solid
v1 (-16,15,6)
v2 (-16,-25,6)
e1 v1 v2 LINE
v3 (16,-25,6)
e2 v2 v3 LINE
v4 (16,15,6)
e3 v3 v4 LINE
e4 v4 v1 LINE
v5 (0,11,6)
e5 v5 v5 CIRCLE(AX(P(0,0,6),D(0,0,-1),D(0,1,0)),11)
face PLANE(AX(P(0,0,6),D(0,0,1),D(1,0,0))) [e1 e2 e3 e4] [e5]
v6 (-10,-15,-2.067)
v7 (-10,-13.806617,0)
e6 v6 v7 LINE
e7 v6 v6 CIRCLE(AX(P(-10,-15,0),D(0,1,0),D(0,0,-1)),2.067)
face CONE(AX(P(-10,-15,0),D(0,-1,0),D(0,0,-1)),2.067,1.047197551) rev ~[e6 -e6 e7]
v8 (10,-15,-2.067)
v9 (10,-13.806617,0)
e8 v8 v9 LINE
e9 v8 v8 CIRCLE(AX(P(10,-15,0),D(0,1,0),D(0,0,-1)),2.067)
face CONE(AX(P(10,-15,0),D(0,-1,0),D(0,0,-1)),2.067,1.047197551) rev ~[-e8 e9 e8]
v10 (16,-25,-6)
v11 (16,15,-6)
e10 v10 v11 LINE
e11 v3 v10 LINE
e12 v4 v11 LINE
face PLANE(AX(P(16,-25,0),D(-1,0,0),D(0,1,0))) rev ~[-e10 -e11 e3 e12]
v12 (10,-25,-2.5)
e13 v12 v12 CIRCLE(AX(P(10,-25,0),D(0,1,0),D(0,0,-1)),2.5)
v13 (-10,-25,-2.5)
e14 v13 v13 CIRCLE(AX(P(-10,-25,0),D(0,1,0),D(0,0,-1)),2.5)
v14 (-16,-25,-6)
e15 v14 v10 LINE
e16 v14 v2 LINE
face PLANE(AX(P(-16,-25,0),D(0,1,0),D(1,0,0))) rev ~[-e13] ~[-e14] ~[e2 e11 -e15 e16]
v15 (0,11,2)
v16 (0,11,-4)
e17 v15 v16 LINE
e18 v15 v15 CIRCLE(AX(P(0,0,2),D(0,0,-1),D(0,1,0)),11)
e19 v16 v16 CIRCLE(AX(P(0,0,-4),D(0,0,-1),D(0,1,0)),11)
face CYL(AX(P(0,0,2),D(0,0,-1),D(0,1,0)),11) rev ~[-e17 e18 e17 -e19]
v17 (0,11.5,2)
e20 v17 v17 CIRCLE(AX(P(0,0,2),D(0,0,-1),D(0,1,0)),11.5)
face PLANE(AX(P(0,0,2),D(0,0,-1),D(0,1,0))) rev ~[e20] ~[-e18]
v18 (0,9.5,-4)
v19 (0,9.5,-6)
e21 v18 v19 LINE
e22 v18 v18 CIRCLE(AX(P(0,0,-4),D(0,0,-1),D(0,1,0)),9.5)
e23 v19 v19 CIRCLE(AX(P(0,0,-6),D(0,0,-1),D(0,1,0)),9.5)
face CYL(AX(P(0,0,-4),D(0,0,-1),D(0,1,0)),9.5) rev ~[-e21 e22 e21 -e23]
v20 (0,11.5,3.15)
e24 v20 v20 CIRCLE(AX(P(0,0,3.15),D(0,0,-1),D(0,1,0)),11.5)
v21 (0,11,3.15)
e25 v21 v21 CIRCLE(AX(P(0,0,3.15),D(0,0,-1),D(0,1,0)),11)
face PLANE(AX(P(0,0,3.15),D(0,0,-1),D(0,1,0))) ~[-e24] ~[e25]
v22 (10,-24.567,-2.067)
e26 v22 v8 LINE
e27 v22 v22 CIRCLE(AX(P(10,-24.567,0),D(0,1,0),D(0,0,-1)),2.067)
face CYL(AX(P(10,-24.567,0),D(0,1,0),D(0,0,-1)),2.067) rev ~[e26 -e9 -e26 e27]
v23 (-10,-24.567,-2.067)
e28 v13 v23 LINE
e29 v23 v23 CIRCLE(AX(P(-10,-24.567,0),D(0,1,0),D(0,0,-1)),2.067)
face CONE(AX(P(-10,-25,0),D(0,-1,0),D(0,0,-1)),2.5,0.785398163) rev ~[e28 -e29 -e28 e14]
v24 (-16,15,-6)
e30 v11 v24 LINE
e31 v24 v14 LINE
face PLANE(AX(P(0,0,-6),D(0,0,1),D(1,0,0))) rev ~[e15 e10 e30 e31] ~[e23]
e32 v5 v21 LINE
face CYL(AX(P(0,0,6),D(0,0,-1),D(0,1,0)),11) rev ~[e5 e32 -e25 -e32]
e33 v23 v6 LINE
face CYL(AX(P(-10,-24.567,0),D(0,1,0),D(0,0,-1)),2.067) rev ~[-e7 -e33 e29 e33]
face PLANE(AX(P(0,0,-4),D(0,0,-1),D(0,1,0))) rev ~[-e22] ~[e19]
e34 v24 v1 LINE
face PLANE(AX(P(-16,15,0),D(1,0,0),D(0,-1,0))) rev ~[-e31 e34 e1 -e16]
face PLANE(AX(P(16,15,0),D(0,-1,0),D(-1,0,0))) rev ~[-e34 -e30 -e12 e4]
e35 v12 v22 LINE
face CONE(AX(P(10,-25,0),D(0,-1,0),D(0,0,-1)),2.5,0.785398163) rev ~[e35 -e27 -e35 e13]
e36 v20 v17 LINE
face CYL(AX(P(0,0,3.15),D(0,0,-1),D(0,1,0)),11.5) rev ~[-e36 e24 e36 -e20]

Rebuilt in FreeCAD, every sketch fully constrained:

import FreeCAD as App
import Part
import Sketcher
from FreeCAD import Vector
Q = App.Units.Quantity


def add_polygon(sketch, points):
    """Adds a closed chain of lines whose ends are joined by coincident constraints."""
    first, n = sketch.GeometryCount, len(points)
    for a, b in zip(points, points[1:] + points[:1]):
        sketch.addGeometry(Part.LineSegment(App.Vector(*a, 0), App.Vector(*b, 0)), False)
    for i in range(n):
        sketch.addConstraint(Sketcher.Constraint("Coincident", first + i, 2, first + (i + 1) % n, 1))

doc = App.newDocument("Part")
params = doc.addObject("Spreadsheet::Sheet", "Params")
for row, (alias, value) in enumerate([
    ("sketch1_width", "32 mm"),
    ("sketch1_height", "40 mm"),
    ("pad1_length", "12 mm"),
    ("sketch2_width", "11 mm"),
    ("sketch2_height", "12 mm"),
    ("sketch2_height2", "2 mm"),
    ("sketch2_height3", "6 mm"),
    ("sketch2_width2", "9.5 mm"),
    ("groove_angle", "360 deg"),
    ("hole_diameter", "4.134 mm"),
    ("hole_depth", "10 mm"),
    ("hole_csink_diameter", "5 mm"),
    ("linearpattern_pitch", "20 mm"),
], start=1):
    params.set(f"A{row}", alias)
    params.set(f"B{row}", "=" + value)
    params.setAlias(f"B{row}", alias)

body = doc.addObject("PartDesign::Body", "Body")

# Sketch on XY plane
sketch1 = body.newObject("Sketcher::SketchObject", "Sketch")
sketch1.AttachmentSupport = (doc.getObject("XY_Plane"), [""])
sketch1.MapMode = "FlatFace"
add_polygon(sketch1, [(16, 15), (-16, 15), (-16, -25), (16, -25)])  # lines 0-3
sketch1.addConstraint([
    Sketcher.Constraint("Horizontal", 0),
    Sketcher.Constraint("Vertical", 1),
    Sketcher.Constraint("Horizontal", 2),
    Sketcher.Constraint("Vertical", 3),
    Sketcher.Constraint("DistanceX", 0, 2, 0, 1, Q("32 mm")),
    Sketcher.Constraint("DistanceY", 1, 2, 1, 1, Q("40 mm")),
    Sketcher.Constraint("DistanceX", 0, 2, -1, 1, Q("16 mm")),
    Sketcher.Constraint("DistanceY", -1, 1, 0, 2, Q("15 mm")),
])
sketch1.setExpression("Constraints[8]", "Params.sketch1_width")
sketch1.setExpression("Constraints[9]", "Params.sketch1_height")
pad1 = body.newObject("PartDesign::Pad", "Pad")
pad1.Profile = sketch1
pad1.setExpression("Length", "Params.pad1_length")
pad1.Midplane = True

# Sketch on YZ plane
sketch2 = body.newObject("Sketcher::SketchObject", "Sketch001")
sketch2.AttachmentSupport = (doc.getObject("YZ_Plane"), [""])
sketch2.MapMode = "FlatFace"
add_polygon(sketch2, [(0, 6), (0, -6), (9.5, -6), (9.5, -4), (11, -4), (11, 2), (11.5, 2), (11.5, 3.15), (11, 3.15), (11, 6)])  # lines 0-9
sketch2.addConstraint([
    Sketcher.Constraint("Vertical", 0),
    Sketcher.Constraint("Horizontal", 1),
    Sketcher.Constraint("Vertical", 2),
    Sketcher.Constraint("Horizontal", 3),
    Sketcher.Constraint("Vertical", 4),
    Sketcher.Constraint("Horizontal", 5),
    Sketcher.Constraint("Vertical", 6),
    Sketcher.Constraint("Horizontal", 7),
    Sketcher.Constraint("Vertical", 8),
    Sketcher.Constraint("Horizontal", 9),
    Sketcher.Constraint("Symmetric", 0, 2, 9, 2, -1, 1),
    Sketcher.Constraint("Vertical", 4, 2, 7, 2),
    Sketcher.Constraint("DistanceX", 9, 2, 9, 1, Q("11 mm")),
    Sketcher.Constraint("DistanceY", 0, 2, 0, 1, Q("12 mm")),
    Sketcher.Constraint("DistanceY", 2, 1, 2, 2, Q("2 mm")),
    Sketcher.Constraint("DistanceY", 4, 1, 4, 2, Q("6 mm")),
    Sketcher.Constraint("DistanceX", 1, 1, 1, 2, Q("9.5 mm")),
    Sketcher.Constraint("DistanceX", 5, 1, 5, 2, Q("0.5 mm")),
    Sketcher.Constraint("DistanceY", 6, 1, 6, 2, Q("1.15 mm")),
])
sketch2.setExpression("Constraints[22]", "Params.sketch2_width")
sketch2.setExpression("Constraints[23]", "Params.sketch2_height")
sketch2.setExpression("Constraints[24]", "Params.sketch2_height2")
sketch2.setExpression("Constraints[25]", "Params.sketch2_height3")
sketch2.setExpression("Constraints[26]", "Params.sketch2_width2")
groove = body.newObject("PartDesign::Groove", "Groove")
groove.Profile = sketch2
groove.ReferenceAxis = (sketch2, ["V_Axis"])
groove.setExpression("Angle", "Params.groove_angle")

# Sketch on XZ plane
sketch3 = body.newObject("Sketcher::SketchObject", "Sketch002")
sketch3.AttachmentSupport = (doc.getObject("XZ_Plane"), [""])
sketch3.MapMode = "FlatFace"
sketch3.AttachmentOffset = App.Placement(Vector(0, 0, 25), App.Rotation())
sketch3.addGeometry(Part.Circle(Vector(-10, 0, 0), Vector(0, 0, 1), 2.067), False)
sketch3.addConstraint([
    Sketcher.Constraint("PointOnObject", 0, 3, -1),
    Sketcher.Constraint("Diameter", 0, Q("4.134 mm")),
    Sketcher.Constraint("DistanceX", 0, 3, -1, 1, Q("10 mm")),
])
doc.recompute()
hole = body.newObject("PartDesign::Hole", "Hole")
hole.Profile = sketch3
hole.ThreadType = "None"
hole.setExpression("Diameter", "Params.hole_diameter")
hole.DepthType = "Dimension"
hole.setExpression("Depth", "Params.hole_depth")
hole.DrillPoint = "Angled"
hole.DrillPointAngle = 120
hole.HoleCutType = "Countersink"
hole.setExpression("HoleCutDiameter", "Params.hole_csink_diameter")
hole.HoleCutCountersinkAngle = 90
doc.recompute()

linearpattern = body.newObject("PartDesign::LinearPattern", "LinearPattern")
linearpattern.Originals = [hole]
linearpattern.Direction = (doc.getObject("X_Axis"), [""])
linearpattern.Mode = "offset"
linearpattern.setExpression("Offset", "Params.linearpattern_pitch")
linearpattern.Occurrences = 2
body.Tip = linearpattern

doc.recompute()
